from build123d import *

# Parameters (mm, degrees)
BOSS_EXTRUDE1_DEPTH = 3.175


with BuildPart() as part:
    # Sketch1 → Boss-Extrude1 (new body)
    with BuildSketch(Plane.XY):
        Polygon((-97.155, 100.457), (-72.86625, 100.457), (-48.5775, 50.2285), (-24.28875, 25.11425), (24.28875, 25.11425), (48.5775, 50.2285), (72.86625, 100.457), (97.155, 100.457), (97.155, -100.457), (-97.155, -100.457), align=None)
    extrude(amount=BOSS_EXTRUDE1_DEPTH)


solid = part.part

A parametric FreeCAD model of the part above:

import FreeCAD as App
import Part
import Sketcher

V = App.Vector
Q = App.Units.Quantity


def add_polygon(sketch, points):
    """Adds a closed chain of lines whose ends are joined by coincident constraints."""
    first, n = sketch.GeometryCount, len(points)
    for a, b in zip(points, points[1:] + points[:1]):
        sketch.addGeometry(Part.LineSegment(App.Vector(*a, 0), App.Vector(*b, 0)), False)
    for i in range(n):
        sketch.addConstraint(Sketcher.Constraint("Coincident", first + i, 2, first + (i + 1) % n, 1))

doc = App.newDocument("Part")
body = doc.addObject("PartDesign::Body", "Body")

# Sketch on XY plane
sketch1 = body.newObject("Sketcher::SketchObject", "Sketch")
sketch1.AttachmentSupport = (doc.getObject("XY_Plane"), [""])
sketch1.MapMode = "FlatFace"
add_polygon(sketch1, [(-73, 100), (-97, 100), (-97, -100), (97, -100), (97, 100), (73, 100), (49, 50), (24, 25), (-24, 25), (-49, 50)])  # lines 0-9
sketch1.addConstraint(Sketcher.Constraint("Horizontal", 0))
sketch1.addConstraint(Sketcher.Constraint("Vertical", 1))
sketch1.addConstraint(Sketcher.Constraint("Horizontal", 2))
sketch1.addConstraint(Sketcher.Constraint("Vertical", 3))
sketch1.addConstraint(Sketcher.Constraint("Horizontal", 4))
sketch1.addConstraint(Sketcher.Constraint("Horizontal", 7))
sketch1.addConstraint(Sketcher.Constraint("Symmetric", 0, 2, 2, 2, -1, 1))
sketch1.addConstraint(Sketcher.Constraint("Symmetric", 5, 2, 8, 2, -2))
sketch1.addConstraint(Sketcher.Constraint("Symmetric", 4, 2, 9, 2, -2))
sketch1.addConstraint(Sketcher.Constraint("Equal", 6, 8))
sketch1.addConstraint(Sketcher.Constraint("DistanceX", 2, 1, 2, 2, Q("7.65 in")))
sketch1.addConstraint(Sketcher.Constraint("DistanceY", 1, 2, 1, 1, Q("7.91 in")))
sketch1.addConstraint(Sketcher.Constraint("DistanceX", 7, 2, 7, 1, Q("1.9125 in")))
sketch1.addConstraint(Sketcher.Constraint("DistanceX", 7, 2, 4, 2, Q("3.825 in")))
sketch1.addConstraint(Sketcher.Constraint("DistanceX", 8, 2, 5, 2, Q("3.825 in")))
sketch1.addConstraint(Sketcher.Constraint("DistanceY", -1, 1, 5, 2, Q("1.9775 in")))
sketch1.addConstraint(Sketcher.Constraint("DistanceY", -1, 1, 6, 2, 25.11425))
pad1 = body.newObject("PartDesign::Pad", "Pad")
pad1.Profile = sketch1
pad1.Length = Q("0.125 in")

doc.recompute()
